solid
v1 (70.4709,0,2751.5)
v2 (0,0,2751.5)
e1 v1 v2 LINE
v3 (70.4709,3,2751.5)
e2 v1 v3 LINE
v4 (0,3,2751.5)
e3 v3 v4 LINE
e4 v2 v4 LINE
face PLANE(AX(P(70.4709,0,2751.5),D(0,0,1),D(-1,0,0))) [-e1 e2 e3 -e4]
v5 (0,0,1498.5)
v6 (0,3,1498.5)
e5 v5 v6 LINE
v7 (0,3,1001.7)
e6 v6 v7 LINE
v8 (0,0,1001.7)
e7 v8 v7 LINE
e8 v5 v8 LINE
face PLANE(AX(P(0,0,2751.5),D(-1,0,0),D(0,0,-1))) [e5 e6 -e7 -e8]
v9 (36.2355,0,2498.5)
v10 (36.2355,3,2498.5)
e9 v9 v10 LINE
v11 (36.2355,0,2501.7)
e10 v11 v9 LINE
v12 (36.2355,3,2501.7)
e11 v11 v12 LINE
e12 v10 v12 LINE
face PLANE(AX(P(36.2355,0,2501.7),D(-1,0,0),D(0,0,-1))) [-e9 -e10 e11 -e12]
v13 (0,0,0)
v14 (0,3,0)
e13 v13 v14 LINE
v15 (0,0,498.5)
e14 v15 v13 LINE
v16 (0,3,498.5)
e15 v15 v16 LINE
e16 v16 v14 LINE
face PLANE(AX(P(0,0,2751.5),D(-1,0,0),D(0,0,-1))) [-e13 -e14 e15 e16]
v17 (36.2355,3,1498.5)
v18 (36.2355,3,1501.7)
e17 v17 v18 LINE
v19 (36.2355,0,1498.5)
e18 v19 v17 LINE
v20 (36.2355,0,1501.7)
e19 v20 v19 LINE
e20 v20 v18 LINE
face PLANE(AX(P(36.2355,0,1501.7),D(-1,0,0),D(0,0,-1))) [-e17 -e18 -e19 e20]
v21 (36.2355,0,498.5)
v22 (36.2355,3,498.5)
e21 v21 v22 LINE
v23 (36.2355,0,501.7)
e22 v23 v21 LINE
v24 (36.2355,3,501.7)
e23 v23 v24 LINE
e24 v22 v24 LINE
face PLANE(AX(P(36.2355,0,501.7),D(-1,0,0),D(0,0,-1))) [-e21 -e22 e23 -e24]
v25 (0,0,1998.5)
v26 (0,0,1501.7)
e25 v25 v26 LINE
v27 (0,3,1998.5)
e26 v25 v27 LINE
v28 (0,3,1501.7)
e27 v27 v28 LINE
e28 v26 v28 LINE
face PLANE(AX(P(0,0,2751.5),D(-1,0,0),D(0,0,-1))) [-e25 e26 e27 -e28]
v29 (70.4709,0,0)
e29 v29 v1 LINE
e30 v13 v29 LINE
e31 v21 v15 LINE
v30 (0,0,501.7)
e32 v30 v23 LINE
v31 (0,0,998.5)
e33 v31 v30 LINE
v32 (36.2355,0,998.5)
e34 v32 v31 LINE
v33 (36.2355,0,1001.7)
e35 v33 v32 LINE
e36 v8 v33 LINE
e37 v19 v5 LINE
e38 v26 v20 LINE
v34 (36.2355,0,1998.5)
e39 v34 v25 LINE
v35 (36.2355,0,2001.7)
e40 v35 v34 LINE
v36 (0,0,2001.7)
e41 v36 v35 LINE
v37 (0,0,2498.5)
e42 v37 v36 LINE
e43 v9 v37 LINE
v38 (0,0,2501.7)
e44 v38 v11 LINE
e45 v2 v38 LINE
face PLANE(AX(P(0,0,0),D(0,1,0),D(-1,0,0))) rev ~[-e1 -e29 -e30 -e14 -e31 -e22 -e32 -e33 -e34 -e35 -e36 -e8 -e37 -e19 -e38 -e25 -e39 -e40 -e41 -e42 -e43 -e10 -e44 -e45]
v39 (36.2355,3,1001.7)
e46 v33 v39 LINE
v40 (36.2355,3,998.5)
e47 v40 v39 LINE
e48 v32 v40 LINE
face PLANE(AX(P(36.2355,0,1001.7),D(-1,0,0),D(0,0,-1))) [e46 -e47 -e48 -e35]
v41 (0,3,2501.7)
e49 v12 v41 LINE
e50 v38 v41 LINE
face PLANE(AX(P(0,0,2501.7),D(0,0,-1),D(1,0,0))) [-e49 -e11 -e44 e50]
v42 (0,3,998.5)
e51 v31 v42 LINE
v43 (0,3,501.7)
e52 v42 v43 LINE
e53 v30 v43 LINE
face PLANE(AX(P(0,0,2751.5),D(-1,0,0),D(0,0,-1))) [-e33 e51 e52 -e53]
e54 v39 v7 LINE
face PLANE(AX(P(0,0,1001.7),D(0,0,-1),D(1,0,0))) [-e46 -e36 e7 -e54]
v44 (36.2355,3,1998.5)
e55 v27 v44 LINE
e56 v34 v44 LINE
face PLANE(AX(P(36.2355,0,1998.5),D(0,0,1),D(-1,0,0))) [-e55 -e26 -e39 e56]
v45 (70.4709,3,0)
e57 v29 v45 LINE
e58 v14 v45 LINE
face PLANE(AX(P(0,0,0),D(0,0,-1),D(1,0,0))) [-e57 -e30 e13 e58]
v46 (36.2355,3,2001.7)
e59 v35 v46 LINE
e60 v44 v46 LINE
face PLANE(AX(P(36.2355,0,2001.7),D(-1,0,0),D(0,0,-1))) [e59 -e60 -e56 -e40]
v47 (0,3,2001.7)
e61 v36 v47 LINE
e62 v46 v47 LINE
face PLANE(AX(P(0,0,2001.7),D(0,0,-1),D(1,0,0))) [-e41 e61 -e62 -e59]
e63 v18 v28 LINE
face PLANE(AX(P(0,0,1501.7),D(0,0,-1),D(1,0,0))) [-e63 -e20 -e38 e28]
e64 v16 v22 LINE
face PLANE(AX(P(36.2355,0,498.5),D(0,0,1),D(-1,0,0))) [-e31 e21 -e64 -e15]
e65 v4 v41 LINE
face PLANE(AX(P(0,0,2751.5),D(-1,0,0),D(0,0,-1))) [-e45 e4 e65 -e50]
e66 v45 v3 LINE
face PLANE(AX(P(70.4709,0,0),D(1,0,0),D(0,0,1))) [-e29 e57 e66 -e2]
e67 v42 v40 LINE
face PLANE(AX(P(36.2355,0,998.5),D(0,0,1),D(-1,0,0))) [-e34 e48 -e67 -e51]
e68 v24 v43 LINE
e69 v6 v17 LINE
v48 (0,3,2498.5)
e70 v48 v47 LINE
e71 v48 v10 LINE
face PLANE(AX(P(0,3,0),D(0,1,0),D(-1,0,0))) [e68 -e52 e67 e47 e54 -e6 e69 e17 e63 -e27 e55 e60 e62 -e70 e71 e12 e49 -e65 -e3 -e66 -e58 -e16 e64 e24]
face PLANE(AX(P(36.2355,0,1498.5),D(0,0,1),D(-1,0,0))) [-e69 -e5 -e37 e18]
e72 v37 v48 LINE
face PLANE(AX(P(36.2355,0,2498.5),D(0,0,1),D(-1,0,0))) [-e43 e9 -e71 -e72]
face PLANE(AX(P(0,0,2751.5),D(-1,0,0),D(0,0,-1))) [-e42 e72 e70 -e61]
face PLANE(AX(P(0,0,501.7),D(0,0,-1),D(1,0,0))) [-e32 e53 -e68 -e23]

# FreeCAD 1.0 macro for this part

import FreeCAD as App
import Part
import Sketcher

V = App.Vector
Q = App.Units.Quantity


def add_polygon(sketch, points):
    """Adds a closed chain of lines whose ends are joined by coincident constraints."""
    first, n = sketch.GeometryCount, len(points)
    for a, b in zip(points, points[1:] + points[:1]):
        sketch.addGeometry(Part.LineSegment(App.Vector(*a, 0), App.Vector(*b, 0)), False)
    for i in range(n):
        sketch.addConstraint(Sketcher.Constraint("Coincident", first + i, 2, first + (i + 1) % n, 1))

doc = App.newDocument("Part")
body = doc.addObject("PartDesign::Body", "Body")

# Sketch on XZ plane
sketch1 = body.newObject("Sketcher::SketchObject", "Sketch")
sketch1.AttachmentSupport = (doc.getObject("XZ_Plane"), [""])
sketch1.MapMode = "FlatFace"
add_polygon(sketch1, [(70, 0), (0, 0), (0, 2752), (70, 2752)])  # lines 0-3
sketch1.addConstraint([
    Sketcher.Constraint("Horizontal", 0),
    Sketcher.Constraint("Vertical", 1),
    Sketcher.Constraint("Horizontal", 2),
    Sketcher.Constraint("Vertical", 3),
    Sketcher.Constraint("Coincident", 0, 2, -1, 1),
    Sketcher.Constraint("DistanceY", 1, 1, 1, 2, Q("2751.5 mm")),
    Sketcher.Constraint("DistanceX", 0, 2, 0, 1, Q("70.471 mm")),
])
pad1 = body.newObject("PartDesign::Pad", "Pad")
pad1.Profile = sketch1
pad1.Length = 3
pad1.Reversed = True

# Sketch on XZ plane
sketch2 = body.newObject("Sketcher::SketchObject", "Sketch001")
sketch2.AttachmentSupport = (doc.getObject("XZ_Plane"), [""])
sketch2.MapMode = "FlatFace"
add_polygon(sketch2, [(36.2, 501.7), (0, 501.7), (0, 498.5), (36.2, 498.5)])  # lines 0-3
sketch2.addConstraint([
    Sketcher.Constraint("Horizontal", 0),
    Sketcher.Constraint("Vertical", 1),
    Sketcher.Constraint("Horizontal", 2),
    Sketcher.Constraint("Vertical", 3),
    Sketcher.Constraint("PointOnObject", 0, 2, -2),
    Sketcher.Constraint("DistanceY", 1, 2, 1, 1, Q("3.2 mm")),
    Sketcher.Constraint("DistanceY", -1, 1, 1, 2, Q("498.5 mm")),
    Sketcher.Constraint("DistanceX", 0, 2, 0, 1, Q("36.2355 mm")),
])
pocket1 = body.newObject("PartDesign::Pocket", "Pocket")
pocket1.Profile = sketch2
pocket1.Type = "ThroughAll"
doc.recompute()

linearpattern = body.newObject("PartDesign::LinearPattern", "LinearPattern")
linearpattern.Originals = [pocket1]
linearpattern.Direction = (doc.getObject("Z_Axis"), [""])
linearpattern.Mode = "offset"
linearpattern.Offset = 500
linearpattern.Occurrences = 5
body.Tip = linearpattern

doc.recompute()
